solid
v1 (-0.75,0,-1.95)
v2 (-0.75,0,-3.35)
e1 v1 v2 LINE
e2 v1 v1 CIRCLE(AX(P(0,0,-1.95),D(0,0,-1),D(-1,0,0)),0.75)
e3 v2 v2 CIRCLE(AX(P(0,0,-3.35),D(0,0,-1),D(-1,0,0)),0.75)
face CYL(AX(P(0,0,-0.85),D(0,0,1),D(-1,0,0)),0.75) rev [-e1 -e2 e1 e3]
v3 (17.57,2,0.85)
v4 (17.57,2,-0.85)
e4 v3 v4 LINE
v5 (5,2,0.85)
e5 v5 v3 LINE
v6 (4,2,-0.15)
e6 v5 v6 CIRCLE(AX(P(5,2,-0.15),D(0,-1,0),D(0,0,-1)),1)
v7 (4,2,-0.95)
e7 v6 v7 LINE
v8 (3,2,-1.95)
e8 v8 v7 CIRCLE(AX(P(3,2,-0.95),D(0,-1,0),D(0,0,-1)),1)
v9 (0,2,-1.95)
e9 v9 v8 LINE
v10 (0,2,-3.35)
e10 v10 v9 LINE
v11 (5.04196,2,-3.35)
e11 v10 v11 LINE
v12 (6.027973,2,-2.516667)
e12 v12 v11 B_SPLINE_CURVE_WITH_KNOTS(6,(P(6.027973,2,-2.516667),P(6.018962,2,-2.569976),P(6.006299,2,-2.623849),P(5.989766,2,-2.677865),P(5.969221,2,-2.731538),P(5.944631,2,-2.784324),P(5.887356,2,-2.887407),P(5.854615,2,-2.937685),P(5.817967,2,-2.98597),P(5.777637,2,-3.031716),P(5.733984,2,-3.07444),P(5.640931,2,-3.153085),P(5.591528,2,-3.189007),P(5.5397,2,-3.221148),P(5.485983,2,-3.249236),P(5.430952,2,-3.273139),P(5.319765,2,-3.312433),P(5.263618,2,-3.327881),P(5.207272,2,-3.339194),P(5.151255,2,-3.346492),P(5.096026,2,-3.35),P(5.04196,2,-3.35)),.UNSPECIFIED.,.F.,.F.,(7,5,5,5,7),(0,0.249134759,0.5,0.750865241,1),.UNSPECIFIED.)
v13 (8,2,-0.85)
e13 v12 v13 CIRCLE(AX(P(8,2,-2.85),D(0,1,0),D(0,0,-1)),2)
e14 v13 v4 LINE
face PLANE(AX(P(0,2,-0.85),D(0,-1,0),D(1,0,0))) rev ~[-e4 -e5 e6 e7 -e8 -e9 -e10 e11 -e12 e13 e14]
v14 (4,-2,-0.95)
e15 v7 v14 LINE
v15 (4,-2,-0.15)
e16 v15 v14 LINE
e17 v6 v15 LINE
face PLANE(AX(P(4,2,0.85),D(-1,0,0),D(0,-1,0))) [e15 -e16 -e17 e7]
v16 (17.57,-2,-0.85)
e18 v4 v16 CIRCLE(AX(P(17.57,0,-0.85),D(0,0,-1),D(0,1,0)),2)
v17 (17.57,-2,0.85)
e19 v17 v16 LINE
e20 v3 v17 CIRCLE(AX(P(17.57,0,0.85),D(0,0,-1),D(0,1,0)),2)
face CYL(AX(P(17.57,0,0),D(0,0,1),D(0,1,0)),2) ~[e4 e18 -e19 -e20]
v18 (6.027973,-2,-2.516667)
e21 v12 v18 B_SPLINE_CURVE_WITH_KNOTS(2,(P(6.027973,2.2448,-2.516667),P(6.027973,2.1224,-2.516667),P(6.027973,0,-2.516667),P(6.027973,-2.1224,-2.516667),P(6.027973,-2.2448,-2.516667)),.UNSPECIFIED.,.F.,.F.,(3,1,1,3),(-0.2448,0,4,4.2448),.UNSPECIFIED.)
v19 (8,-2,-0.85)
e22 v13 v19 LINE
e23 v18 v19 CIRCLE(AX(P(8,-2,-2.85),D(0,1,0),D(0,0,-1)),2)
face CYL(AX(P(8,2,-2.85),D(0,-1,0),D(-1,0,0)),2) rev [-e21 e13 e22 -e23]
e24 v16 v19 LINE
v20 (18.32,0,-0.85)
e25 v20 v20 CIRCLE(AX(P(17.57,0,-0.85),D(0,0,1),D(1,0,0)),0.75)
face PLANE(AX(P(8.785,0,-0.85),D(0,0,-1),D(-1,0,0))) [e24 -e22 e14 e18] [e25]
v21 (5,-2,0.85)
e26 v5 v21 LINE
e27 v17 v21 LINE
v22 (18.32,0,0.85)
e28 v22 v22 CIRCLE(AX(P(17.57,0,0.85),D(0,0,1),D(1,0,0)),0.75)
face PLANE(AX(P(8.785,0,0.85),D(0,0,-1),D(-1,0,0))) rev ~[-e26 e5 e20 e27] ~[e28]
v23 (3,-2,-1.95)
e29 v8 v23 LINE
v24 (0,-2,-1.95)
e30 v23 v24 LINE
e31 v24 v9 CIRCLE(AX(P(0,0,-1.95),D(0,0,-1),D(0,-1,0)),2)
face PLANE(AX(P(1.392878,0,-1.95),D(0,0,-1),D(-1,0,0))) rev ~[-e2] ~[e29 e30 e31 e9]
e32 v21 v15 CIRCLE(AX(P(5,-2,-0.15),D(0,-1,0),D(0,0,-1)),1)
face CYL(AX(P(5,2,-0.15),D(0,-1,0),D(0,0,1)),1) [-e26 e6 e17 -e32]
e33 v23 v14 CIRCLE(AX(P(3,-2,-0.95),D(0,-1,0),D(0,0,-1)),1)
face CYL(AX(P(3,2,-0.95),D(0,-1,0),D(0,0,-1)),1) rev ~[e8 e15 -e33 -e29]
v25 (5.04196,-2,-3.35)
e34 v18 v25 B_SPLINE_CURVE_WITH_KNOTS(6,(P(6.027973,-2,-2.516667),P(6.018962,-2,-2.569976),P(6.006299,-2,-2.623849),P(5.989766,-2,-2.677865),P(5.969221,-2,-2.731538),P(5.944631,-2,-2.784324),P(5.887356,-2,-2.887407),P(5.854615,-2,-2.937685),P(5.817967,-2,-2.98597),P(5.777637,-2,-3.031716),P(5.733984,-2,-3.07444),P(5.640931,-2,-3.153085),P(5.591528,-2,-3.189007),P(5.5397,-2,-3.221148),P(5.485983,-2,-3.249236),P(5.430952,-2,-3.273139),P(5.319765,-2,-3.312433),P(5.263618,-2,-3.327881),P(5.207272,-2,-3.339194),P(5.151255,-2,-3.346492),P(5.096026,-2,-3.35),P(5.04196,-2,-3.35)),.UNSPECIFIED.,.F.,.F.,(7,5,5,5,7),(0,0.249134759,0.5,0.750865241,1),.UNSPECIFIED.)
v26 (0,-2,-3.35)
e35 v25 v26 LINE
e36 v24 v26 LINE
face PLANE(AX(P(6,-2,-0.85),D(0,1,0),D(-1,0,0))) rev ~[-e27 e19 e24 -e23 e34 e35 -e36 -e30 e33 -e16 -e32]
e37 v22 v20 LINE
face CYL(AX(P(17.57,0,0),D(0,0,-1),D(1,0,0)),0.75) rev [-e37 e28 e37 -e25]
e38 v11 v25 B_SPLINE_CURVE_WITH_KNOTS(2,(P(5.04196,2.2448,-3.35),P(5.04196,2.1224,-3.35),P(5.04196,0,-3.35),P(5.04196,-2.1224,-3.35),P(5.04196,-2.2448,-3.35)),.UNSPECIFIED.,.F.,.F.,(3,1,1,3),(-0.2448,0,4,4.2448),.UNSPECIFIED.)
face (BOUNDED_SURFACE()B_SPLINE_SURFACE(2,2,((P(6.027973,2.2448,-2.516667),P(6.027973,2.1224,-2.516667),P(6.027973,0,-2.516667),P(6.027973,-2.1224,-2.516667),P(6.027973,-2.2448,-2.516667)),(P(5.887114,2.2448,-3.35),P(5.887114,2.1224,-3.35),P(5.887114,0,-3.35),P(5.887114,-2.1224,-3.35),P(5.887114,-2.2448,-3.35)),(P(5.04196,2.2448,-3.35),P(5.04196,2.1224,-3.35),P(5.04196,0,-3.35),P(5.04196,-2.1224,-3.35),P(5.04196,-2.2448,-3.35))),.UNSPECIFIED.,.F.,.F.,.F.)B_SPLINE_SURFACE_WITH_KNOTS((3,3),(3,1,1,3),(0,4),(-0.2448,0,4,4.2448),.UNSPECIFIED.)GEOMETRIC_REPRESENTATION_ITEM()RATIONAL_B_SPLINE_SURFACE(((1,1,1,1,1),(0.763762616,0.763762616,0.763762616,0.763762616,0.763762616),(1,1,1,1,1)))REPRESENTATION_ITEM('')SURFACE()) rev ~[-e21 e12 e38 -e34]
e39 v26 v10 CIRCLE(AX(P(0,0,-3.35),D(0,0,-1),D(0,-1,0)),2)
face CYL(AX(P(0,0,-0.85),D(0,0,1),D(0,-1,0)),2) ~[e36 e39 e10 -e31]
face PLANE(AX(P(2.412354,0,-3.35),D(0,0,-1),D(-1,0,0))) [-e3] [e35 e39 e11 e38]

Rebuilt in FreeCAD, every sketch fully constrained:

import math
import FreeCAD as App
import Part
import Sketcher
from FreeCAD import Vector
Q = App.Units.Quantity


def edges_at(feature, points):
    """Names of the edges that pass closest to the given points."""
    edges = feature.Shape.Edges
    near = lambda p: min(range(len(edges)), key=lambda i: edges[i].distToShape(Part.Vertex(*p))[0])
    return sorted({f"Edge{near(p) + 1}" for p in points})

doc = App.newDocument("Part")
params = doc.addObject("Spreadsheet::Sheet", "Params")
for row, (alias, value) in enumerate([
    ("sketch1_radius", "2 mm"),
    ("sketch1_diameter", "1.5 mm"),
    ("sketch1_width", "17.57 mm"),
    ("pad1_length", "1.7 mm"),
    ("sketch2_radius", "2 mm"),
    ("sketch2_diameter", "1.5 mm"),
    ("sketch2_width", "6 mm"),
    ("pad2_length", "2.5 mm"),
    ("sketch3_radius", "2 mm"),
    ("sketch3_diameter", "1.5 mm"),
    ("pocket1_length", "2.8 mm"),
    ("fillet_radius", "2 mm"),
    ("fillet2_radius", "1 mm"),
    ("fillet3_radius", "1 mm"),
], start=1):
    params.set(f"A{row}", alias)
    params.set(f"B{row}", "=" + value)
    params.setAlias(f"B{row}", alias)

body = doc.addObject("PartDesign::Body", "Body")

# Sketch on XY plane
sketch1 = doc.addObject("Sketcher::SketchObject", "Sketch")
body.addObject(sketch1)
sketch1.AttachmentSupport = (doc.XY_Plane, [""])
sketch1.MapMode = "FlatFace"
sketch1.addGeometry([
    Part.LineSegment(Vector(17.6, 2, 0), Vector(0, 2, 0)),  # 0
    Part.ArcOfCircle(Part.Circle(Vector(0, 0, 0), Vector(0, 0, 1), 2), math.radians(90), math.radians(270)),  # 1
    Part.LineSegment(Vector(0, -2, 0), Vector(17.6, -2, 0)),  # 2
    Part.ArcOfCircle(Part.Circle(Vector(17.6, 0, 0), Vector(0, 0, 1), 2), math.radians(-90), math.radians(90)),  # 3
    Part.Circle(Vector(17.6, 0, 0), Vector(0, 0, 1), 0.8),  # 4
    Part.Circle(Vector(0, 0, 0), Vector(0, 0, 1), 0.8),  # 5
], False)
sketch1.addConstraint([
    Sketcher.Constraint("Tangent", 0, 2, 1, 1),
    Sketcher.Constraint("Tangent", 1, 2, 2, 1),
    Sketcher.Constraint("Tangent", 2, 2, 3, 1),
    Sketcher.Constraint("Tangent", 3, 2, 0, 1),
    Sketcher.Constraint("Horizontal", 0),
    Sketcher.Constraint("Horizontal", 2),
    Sketcher.Constraint("Coincident", 1, 3, -1, 1),
    Sketcher.Constraint("Coincident", 5, 3, -1, 1),
    Sketcher.Constraint("Coincident", 4, 3, 3, 3),
    Sketcher.Constraint("Equal", 4, 5),
    Sketcher.Constraint("Radius", 1, Q("2 mm")),
    Sketcher.Constraint("Diameter", 4, Q("1.5 mm")),
    Sketcher.Constraint("DistanceX", 0, 2, 0, 1, Q("17.57 mm")),
])
sketch1.setExpression("Constraints[10]", "Params.sketch1_radius")
sketch1.setExpression("Constraints[11]", "Params.sketch1_diameter")
sketch1.setExpression("Constraints[12]", "Params.sketch1_width")
pad1 = doc.addObject("PartDesign::Pad", "Pad")
body.addObject(pad1)
pad1.Profile = sketch1
pad1.setExpression("Length", "Params.pad1_length")
pad1.Midplane = True

# Sketch on XY plane
sketch2 = doc.addObject("Sketcher::SketchObject", "Sketch001")
body.addObject(sketch2)
sketch2.AttachmentSupport = (doc.XY_Plane, [""])
sketch2.MapMode = "FlatFace"
sketch2.AttachmentOffset = App.Placement(Vector(0, 0, -0.85), App.Rotation())
sketch2.addGeometry([
    Part.LineSegment(Vector(6, 2, 0), Vector(6, -2, 0)),  # 0
    Part.LineSegment(Vector(6, -2, 0), Vector(0, -2, 0)),  # 1
    Part.ArcOfCircle(Part.Circle(Vector(0, 0, 0), Vector(0, 0, 1), 2), math.radians(90), math.radians(270)),  # 2
    Part.LineSegment(Vector(0, 2, 0), Vector(6, 2, 0)),  # 3
    Part.Circle(Vector(0, 0, 0), Vector(0, 0, 1), 0.8),  # 4
], False)
sketch2.addConstraint([
    Sketcher.Constraint("Coincident", 0, 2, 1, 1),
    Sketcher.Constraint("Tangent", 1, 2, 2, 2),
    Sketcher.Constraint("Tangent", 2, 1, 3, 1),
    Sketcher.Constraint("Coincident", 3, 2, 0, 1),
    Sketcher.Constraint("Vertical", 0),
    Sketcher.Constraint("Horizontal", 1),
    Sketcher.Constraint("Horizontal", 3),
    Sketcher.Constraint("Coincident", 2, 3, -1, 1),
    Sketcher.Constraint("Coincident", 4, 3, -1, 1),
    Sketcher.Constraint("Radius", 2, Q("2 mm")),
    Sketcher.Constraint("Diameter", 4, Q("1.5 mm")),
    Sketcher.Constraint("DistanceX", 1, 2, 1, 1, Q("6 mm")),
])
sketch2.setExpression("Constraints[9]", "Params.sketch2_radius")
sketch2.setExpression("Constraints[10]", "Params.sketch2_diameter")
sketch2.setExpression("Constraints[11]", "Params.sketch2_width")
pad2 = doc.addObject("PartDesign::Pad", "Pad001")
body.addObject(pad2)
pad2.Profile = sketch2
pad2.setExpression("Length", "Params.pad2_length")
pad2.Reversed = True

# Sketch on XY plane
sketch3 = doc.addObject("Sketcher::SketchObject", "Sketch002")
body.addObject(sketch3)
sketch3.AttachmentSupport = (doc.XY_Plane, [""])
sketch3.MapMode = "FlatFace"
sketch3.AttachmentOffset = App.Placement(Vector(0, 0, 0.85), App.Rotation())
sketch3.addGeometry([
    Part.LineSegment(Vector(4, -2, 0), Vector(4, 2, 0)),  # 0
    Part.LineSegment(Vector(4, 2, 0), Vector(0, 2, 0)),  # 1
    Part.ArcOfCircle(Part.Circle(Vector(0, 0, 0), Vector(0, 0, 1), 2), math.radians(90), math.radians(270)),  # 2
    Part.LineSegment(Vector(0, -2, 0), Vector(4, -2, 0)),  # 3
    Part.Circle(Vector(0, 0, 0), Vector(0, 0, 1), 0.8),  # 4
], False)
sketch3.addConstraint([
    Sketcher.Constraint("Coincident", 0, 2, 1, 1),
    Sketcher.Constraint("Tangent", 1, 2, 2, 1),
    Sketcher.Constraint("Tangent", 2, 2, 3, 1),
    Sketcher.Constraint("Coincident", 3, 2, 0, 1),
    Sketcher.Constraint("Vertical", 0),
    Sketcher.Constraint("Horizontal", 1),
    Sketcher.Constraint("Horizontal", 3),
    Sketcher.Constraint("Coincident", 2, 3, -1, 1),
    Sketcher.Constraint("Coincident", 4, 3, -1, 1),
    Sketcher.Constraint("Equal", 3, 0),
    Sketcher.Constraint("Radius", 2, Q("2 mm")),
    Sketcher.Constraint("Diameter", 4, Q("1.5 mm")),
])
sketch3.setExpression("Constraints[10]", "Params.sketch3_radius")
sketch3.setExpression("Constraints[11]", "Params.sketch3_diameter")
pocket1 = doc.addObject("PartDesign::Pocket", "Pocket")
body.addObject(pocket1)
pocket1.Profile = sketch3
pocket1.setExpression("Length", "Params.pocket1_length")
doc.recompute()

fillet = doc.addObject("PartDesign::Fillet", "Fillet")
body.addObject(fillet)
fillet.Base = (pocket1, edges_at(pocket1, [(6, 0, -0.85)]))
fillet.setExpression("Radius", "Params.fillet_radius")
doc.recompute()

fillet2 = doc.addObject("PartDesign::Fillet", "Fillet001")
body.addObject(fillet2)
fillet2.Base = (fillet, edges_at(fillet, [(6, 0, -3.35)]))
fillet2.setExpression("Radius", "Params.fillet2_radius")
doc.recompute()

fillet3 = doc.addObject("PartDesign::Fillet", "Fillet002")
body.addObject(fillet3)
fillet3.Base = (fillet2, edges_at(fillet2, [(4, 0, -1.95), (4, 0, 0.85)]))
fillet3.setExpression("Radius", "Params.fillet3_radius")

doc.recompute()
